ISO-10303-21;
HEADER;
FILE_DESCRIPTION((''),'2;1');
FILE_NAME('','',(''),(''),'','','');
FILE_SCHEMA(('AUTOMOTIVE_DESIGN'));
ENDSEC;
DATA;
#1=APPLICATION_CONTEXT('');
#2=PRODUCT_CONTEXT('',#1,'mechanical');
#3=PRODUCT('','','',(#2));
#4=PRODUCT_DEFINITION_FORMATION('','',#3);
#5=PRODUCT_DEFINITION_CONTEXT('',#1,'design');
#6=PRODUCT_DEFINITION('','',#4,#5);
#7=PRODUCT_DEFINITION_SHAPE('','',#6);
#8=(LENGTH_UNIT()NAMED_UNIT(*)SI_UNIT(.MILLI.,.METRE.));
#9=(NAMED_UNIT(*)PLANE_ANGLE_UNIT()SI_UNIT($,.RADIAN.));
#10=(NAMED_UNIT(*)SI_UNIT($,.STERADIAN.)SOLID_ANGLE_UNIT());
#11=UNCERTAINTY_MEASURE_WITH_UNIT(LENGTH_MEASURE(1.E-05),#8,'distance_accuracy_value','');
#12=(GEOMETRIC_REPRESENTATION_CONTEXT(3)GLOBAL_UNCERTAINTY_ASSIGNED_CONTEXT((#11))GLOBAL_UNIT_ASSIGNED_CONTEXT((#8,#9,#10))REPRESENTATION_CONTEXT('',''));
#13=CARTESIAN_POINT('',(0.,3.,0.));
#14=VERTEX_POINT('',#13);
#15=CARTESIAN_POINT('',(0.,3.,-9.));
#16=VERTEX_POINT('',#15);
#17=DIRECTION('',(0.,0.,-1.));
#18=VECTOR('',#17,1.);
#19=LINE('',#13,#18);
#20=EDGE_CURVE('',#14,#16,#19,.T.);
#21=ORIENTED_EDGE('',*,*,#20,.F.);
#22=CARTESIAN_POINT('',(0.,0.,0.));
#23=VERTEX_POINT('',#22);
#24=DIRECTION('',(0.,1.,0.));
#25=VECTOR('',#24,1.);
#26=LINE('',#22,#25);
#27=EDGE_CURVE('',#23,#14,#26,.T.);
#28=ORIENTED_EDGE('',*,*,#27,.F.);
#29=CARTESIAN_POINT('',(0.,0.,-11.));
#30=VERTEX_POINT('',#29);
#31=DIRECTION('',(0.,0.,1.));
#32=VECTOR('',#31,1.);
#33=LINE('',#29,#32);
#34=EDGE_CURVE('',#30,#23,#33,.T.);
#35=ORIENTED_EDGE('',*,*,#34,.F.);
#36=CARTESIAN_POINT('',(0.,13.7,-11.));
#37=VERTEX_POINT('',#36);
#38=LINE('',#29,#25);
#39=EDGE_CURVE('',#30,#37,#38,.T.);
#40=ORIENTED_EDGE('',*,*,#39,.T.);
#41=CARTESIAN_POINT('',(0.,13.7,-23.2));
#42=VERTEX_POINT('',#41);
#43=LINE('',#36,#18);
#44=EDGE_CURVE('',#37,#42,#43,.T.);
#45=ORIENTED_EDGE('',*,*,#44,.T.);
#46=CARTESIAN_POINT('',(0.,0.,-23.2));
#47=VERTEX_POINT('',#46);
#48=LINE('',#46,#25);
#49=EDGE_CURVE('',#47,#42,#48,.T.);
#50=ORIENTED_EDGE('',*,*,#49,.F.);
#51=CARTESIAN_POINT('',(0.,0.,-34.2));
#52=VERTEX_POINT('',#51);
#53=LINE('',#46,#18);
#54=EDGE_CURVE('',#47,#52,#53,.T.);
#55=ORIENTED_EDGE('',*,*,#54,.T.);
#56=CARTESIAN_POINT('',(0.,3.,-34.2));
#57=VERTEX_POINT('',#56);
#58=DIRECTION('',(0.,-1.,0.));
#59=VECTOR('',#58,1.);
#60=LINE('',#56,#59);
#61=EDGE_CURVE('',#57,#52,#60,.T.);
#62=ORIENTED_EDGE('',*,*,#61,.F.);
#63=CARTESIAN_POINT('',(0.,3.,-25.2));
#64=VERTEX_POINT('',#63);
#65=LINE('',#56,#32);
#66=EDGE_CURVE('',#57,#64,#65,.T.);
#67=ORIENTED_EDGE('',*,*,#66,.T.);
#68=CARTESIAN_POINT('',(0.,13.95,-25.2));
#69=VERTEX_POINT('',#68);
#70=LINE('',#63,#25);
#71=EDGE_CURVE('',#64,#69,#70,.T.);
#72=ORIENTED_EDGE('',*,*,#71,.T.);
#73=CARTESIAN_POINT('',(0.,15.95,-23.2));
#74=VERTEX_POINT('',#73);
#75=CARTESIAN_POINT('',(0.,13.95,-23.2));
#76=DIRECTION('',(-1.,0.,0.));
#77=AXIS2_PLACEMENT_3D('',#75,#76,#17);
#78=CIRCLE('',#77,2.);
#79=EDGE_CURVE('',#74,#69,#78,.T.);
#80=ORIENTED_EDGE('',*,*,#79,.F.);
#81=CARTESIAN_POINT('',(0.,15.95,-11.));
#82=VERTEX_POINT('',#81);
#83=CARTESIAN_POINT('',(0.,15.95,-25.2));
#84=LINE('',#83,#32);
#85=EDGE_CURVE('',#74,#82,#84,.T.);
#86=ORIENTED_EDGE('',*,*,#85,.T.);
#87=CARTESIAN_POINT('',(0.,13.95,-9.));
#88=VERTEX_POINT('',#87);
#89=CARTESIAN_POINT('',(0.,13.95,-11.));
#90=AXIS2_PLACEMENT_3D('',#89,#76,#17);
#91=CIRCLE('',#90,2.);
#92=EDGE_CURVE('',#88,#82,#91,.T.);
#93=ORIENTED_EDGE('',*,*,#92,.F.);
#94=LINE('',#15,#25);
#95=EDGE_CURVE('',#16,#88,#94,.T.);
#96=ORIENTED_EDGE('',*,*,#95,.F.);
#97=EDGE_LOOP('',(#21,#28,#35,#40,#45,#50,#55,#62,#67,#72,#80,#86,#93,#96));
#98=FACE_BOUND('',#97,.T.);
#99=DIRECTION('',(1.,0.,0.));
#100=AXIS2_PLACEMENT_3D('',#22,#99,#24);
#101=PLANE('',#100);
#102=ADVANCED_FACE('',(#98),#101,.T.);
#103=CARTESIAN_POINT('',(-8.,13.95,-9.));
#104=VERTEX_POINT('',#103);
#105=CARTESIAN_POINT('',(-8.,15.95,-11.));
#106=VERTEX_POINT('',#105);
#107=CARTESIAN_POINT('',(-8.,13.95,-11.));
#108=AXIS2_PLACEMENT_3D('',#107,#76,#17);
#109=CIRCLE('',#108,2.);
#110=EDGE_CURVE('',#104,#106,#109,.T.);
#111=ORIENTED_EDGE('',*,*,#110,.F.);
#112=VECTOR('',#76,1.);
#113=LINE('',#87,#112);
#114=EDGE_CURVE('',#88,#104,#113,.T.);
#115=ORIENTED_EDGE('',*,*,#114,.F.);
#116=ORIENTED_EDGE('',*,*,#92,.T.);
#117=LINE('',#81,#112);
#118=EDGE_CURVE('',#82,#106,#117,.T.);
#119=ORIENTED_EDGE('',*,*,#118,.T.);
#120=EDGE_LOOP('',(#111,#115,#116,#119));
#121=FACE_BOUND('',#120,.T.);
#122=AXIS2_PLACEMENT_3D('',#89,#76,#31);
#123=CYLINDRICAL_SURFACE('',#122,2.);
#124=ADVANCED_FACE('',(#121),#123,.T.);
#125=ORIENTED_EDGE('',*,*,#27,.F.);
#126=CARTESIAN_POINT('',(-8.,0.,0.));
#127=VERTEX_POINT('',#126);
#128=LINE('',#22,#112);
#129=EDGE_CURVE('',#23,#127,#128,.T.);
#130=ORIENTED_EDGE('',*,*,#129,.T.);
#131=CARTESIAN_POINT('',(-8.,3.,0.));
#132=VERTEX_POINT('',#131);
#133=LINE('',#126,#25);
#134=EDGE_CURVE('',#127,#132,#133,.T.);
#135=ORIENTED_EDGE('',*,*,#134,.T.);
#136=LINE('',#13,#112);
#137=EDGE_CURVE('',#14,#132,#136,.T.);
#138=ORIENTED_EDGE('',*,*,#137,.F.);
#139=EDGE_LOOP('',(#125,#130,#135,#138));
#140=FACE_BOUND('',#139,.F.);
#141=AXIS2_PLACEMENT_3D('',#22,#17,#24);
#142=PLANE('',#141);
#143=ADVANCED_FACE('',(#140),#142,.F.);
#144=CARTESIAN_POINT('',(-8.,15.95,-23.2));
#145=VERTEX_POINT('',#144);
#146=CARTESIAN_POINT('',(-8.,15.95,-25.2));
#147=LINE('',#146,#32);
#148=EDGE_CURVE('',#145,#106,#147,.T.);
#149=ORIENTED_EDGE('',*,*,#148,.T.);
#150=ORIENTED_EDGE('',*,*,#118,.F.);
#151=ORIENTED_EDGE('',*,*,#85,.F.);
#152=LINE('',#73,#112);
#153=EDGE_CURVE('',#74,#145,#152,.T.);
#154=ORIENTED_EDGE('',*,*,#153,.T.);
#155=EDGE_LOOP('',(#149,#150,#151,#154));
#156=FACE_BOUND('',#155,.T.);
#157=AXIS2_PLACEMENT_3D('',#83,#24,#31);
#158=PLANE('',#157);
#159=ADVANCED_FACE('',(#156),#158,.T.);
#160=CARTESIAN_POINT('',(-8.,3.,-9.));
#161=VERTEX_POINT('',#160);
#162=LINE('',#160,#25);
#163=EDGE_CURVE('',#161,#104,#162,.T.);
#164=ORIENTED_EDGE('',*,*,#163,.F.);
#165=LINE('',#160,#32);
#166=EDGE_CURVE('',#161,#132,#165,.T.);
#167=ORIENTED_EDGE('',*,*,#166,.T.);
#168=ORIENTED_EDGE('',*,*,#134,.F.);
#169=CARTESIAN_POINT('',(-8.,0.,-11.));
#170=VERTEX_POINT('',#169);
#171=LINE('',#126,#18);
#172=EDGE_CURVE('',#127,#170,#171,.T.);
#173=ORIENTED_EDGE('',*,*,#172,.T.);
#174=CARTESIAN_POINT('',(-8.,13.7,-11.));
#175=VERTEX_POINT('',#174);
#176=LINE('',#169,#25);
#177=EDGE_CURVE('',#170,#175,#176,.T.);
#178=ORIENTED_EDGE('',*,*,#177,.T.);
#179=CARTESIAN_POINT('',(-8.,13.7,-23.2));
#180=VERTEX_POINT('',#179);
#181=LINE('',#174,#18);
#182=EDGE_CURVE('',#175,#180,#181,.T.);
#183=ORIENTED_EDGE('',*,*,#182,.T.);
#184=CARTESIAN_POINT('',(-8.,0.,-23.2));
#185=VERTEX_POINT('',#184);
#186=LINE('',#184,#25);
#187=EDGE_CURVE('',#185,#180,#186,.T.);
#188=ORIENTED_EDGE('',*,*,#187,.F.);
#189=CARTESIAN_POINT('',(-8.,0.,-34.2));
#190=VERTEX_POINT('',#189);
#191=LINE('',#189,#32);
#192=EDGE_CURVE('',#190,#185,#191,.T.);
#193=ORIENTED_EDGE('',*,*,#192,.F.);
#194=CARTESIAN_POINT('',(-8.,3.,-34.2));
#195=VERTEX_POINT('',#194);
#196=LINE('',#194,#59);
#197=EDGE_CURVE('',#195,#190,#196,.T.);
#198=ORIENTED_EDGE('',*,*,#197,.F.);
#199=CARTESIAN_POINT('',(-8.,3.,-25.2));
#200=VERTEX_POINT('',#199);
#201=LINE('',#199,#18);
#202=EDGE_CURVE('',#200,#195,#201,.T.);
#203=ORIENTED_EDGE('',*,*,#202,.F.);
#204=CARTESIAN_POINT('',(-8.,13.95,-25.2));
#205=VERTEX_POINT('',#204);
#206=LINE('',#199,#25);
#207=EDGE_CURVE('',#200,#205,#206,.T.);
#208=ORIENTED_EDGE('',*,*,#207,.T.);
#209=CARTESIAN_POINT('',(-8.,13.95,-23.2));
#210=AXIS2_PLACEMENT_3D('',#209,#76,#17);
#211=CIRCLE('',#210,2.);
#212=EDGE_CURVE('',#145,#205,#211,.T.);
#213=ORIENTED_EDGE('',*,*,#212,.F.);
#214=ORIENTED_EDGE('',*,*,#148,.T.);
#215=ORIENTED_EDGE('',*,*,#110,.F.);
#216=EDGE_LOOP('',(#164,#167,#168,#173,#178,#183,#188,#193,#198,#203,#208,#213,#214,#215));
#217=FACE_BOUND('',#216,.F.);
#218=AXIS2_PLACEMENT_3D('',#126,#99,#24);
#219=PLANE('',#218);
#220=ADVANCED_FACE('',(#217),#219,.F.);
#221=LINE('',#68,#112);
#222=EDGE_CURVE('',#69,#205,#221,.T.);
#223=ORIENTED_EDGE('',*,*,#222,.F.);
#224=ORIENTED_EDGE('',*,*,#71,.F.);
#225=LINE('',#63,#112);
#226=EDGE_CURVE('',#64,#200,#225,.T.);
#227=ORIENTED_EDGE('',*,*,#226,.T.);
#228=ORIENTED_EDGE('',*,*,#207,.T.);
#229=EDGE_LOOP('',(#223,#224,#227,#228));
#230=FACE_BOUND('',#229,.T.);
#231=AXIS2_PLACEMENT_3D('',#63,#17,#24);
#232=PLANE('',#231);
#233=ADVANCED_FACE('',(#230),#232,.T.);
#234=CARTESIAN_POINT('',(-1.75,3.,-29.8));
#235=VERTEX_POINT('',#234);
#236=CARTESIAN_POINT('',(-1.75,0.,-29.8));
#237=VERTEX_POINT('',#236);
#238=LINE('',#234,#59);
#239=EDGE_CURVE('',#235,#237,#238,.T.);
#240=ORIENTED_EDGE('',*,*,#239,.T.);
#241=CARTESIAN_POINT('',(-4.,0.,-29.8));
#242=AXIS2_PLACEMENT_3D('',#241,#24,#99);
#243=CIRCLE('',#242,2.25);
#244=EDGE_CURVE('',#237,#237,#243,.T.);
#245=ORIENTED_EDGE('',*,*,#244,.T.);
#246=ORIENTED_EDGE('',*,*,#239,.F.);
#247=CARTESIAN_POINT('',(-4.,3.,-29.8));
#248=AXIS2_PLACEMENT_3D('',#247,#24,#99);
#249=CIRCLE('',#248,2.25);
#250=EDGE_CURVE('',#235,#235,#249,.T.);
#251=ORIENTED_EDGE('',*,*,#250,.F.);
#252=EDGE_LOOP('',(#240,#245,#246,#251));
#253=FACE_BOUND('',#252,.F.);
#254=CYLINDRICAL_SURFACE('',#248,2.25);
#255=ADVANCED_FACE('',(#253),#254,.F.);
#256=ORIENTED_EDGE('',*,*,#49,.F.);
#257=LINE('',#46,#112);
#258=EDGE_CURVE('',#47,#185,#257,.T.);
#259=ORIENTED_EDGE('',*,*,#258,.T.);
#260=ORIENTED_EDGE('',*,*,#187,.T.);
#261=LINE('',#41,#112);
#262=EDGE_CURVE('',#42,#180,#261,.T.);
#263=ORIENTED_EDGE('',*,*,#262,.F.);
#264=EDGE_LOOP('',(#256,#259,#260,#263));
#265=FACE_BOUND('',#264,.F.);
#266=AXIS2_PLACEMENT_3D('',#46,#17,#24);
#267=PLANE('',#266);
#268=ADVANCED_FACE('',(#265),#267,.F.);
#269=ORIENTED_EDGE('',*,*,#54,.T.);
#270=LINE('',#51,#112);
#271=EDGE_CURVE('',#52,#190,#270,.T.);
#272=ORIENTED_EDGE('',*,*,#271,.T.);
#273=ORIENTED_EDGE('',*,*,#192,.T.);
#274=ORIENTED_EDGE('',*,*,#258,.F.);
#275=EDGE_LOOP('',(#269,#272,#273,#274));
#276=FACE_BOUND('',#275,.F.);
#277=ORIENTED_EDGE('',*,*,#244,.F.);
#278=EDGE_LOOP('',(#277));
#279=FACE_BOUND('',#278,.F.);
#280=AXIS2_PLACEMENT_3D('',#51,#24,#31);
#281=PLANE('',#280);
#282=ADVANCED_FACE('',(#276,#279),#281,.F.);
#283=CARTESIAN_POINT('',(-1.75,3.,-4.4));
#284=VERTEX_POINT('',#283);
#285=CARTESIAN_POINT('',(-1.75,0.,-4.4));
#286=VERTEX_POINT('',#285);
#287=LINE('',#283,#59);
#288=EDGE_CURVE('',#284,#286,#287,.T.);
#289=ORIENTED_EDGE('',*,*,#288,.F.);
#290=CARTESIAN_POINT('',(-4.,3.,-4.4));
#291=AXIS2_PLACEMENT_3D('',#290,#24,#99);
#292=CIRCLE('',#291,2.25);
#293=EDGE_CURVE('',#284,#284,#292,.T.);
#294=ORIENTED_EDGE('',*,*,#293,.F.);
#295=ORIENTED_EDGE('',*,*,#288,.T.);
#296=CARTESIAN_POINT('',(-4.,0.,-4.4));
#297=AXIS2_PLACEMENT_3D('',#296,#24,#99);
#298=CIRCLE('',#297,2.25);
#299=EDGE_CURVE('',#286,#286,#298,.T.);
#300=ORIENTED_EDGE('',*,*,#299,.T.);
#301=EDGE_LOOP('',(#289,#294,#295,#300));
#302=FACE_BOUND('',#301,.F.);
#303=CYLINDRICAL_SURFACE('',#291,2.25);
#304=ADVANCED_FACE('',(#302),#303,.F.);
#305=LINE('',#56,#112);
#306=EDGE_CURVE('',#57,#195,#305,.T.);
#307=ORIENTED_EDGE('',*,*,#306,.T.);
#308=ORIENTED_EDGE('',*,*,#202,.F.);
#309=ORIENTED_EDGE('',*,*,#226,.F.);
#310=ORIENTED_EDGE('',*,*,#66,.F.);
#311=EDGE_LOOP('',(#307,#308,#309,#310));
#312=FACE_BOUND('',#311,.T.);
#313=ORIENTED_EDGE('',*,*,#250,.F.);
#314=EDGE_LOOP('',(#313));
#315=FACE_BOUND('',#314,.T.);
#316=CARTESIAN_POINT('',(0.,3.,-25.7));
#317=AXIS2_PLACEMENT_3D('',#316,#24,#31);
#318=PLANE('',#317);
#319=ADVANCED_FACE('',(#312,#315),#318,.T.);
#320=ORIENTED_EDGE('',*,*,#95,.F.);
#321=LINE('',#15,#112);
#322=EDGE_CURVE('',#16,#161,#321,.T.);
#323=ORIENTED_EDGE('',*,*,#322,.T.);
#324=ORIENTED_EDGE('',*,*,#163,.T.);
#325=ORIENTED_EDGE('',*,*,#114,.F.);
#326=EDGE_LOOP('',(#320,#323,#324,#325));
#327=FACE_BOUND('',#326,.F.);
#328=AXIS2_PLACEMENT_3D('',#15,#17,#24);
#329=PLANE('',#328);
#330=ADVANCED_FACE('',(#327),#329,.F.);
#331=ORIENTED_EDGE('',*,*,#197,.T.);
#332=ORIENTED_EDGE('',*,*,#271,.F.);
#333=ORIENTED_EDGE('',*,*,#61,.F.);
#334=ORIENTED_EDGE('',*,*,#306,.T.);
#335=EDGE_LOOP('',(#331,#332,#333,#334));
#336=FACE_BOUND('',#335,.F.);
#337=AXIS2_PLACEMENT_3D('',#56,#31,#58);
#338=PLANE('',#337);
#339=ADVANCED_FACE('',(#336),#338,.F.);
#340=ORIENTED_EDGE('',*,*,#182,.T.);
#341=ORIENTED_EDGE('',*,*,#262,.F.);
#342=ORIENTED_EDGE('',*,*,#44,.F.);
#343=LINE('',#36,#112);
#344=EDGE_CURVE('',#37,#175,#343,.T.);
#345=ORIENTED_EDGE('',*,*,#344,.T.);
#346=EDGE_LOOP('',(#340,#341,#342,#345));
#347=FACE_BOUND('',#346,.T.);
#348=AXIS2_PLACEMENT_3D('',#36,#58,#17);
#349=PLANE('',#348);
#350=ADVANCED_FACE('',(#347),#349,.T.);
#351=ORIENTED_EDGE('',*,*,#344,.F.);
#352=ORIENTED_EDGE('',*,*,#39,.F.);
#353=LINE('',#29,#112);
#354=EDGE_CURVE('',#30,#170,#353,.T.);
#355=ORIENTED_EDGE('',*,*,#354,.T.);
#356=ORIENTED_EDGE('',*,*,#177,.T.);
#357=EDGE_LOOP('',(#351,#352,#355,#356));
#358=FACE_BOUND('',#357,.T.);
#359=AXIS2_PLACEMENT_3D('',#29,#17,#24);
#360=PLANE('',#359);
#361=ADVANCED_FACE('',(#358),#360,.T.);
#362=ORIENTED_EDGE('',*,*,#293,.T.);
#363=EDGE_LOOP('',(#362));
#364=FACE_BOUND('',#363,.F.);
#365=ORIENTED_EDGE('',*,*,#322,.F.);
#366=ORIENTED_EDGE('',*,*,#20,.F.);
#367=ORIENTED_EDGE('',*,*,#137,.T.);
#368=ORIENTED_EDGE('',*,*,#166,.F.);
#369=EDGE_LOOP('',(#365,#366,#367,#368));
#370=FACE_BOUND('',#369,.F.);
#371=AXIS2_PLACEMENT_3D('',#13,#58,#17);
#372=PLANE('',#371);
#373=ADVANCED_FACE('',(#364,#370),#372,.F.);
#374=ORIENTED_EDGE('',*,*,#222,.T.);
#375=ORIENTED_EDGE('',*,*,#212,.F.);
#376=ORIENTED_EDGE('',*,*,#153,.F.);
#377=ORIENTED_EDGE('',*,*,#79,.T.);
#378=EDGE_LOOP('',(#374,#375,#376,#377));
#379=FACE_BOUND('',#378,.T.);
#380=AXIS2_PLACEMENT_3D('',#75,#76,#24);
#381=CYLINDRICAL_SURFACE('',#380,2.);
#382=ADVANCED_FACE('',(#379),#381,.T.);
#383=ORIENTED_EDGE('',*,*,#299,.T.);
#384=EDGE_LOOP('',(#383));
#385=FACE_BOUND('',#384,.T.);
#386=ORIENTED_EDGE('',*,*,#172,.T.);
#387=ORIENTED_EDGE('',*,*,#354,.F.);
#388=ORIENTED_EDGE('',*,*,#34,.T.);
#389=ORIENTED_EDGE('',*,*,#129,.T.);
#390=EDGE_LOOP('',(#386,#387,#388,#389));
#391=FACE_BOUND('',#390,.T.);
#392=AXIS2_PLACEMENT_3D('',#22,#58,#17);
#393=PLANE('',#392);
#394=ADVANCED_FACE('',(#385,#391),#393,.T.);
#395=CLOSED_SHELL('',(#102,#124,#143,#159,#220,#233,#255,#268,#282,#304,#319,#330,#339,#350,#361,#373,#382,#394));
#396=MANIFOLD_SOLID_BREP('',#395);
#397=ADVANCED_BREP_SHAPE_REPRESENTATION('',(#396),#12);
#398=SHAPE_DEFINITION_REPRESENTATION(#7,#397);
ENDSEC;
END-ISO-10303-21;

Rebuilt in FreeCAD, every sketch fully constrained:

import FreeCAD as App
import Part
import Sketcher


def edges_at(feature, points):
    """Names of the edges that pass closest to the given points."""
    edges = feature.Shape.Edges
    near = lambda p: min(range(len(edges)), key=lambda i: edges[i].distToShape(Part.Vertex(*p))[0])
    return sorted({f"Edge{near(p) + 1}" for p in points})


def add_polygon(sketch, points):
    """Adds a closed chain of lines whose ends are joined by coincident constraints."""
    first, n = sketch.GeometryCount, len(points)
    for a, b in zip(points, points[1:] + points[:1]):
        sketch.addGeometry(Part.LineSegment(App.Vector(*a, 0), App.Vector(*b, 0)), False)
    for i in range(n):
        sketch.addConstraint(Sketcher.Constraint("Coincident", first + i, 2, first + (i + 1) % n, 1))

doc = App.newDocument("Part")
body = doc.addObject("PartDesign::Body", "Body")

sketch1 = body.newObject("Sketcher::SketchObject", "Sketch")
sketch1.AttachmentSupport = (doc.getObject("YZ_Plane"), [""])
sketch1.MapMode = "FlatFace"
add_polygon(sketch1, [(3, 0), (0, 0), (0, -11), (13.7, -11), (13.7, -23.2), (0, -23.2), (0, -34.2), (3, -34.2), (3, -25.2), (15.9, -25.2), (15.9, -9), (3, -9)])
sketch1.addConstraint(Sketcher.Constraint("Horizontal", 0))
sketch1.addConstraint(Sketcher.Constraint("Vertical", 1))
sketch1.addConstraint(Sketcher.Constraint("Horizontal", 2))
sketch1.addConstraint(Sketcher.Constraint("Vertical", 3))
sketch1.addConstraint(Sketcher.Constraint("Horizontal", 4))
sketch1.addConstraint(Sketcher.Constraint("Vertical", 5))
sketch1.addConstraint(Sketcher.Constraint("Horizontal", 6))
sketch1.addConstraint(Sketcher.Constraint("Vertical", 7))
sketch1.addConstraint(Sketcher.Constraint("Horizontal", 8))
sketch1.addConstraint(Sketcher.Constraint("Vertical", 9))
sketch1.addConstraint(Sketcher.Constraint("Horizontal", 10))
sketch1.addConstraint(Sketcher.Constraint("Vertical", 11))
sketch1.addConstraint(Sketcher.Constraint("Coincident", 0, 2, -1, 1))
sketch1.addConstraint(Sketcher.Constraint("PointOnObject", 4, 2, -2))
sketch1.addConstraint(Sketcher.Constraint("Vertical", 7, 2, 10, 2))
sketch1.addConstraint(Sketcher.Constraint("Equal", 1, 5))
sketch1.addConstraint(Sketcher.Constraint("Equal", 7, 11))
sketch1.addConstraint(Sketcher.Constraint("DistanceX", 0, 2, 0, 1, 3.0))
sketch1.addConstraint(Sketcher.Constraint("DistanceX", 2, 1, 2, 2, 13.7))
sketch1.addConstraint(Sketcher.Constraint("DistanceY", 3, 2, 3, 1, 12.2))
sketch1.addConstraint(Sketcher.Constraint("DistanceY", 1, 2, 1, 1, 11.0))
sketch1.addConstraint(Sketcher.Constraint("DistanceY", 7, 1, 7, 2, 9.0))
sketch1.addConstraint(Sketcher.Constraint("DistanceX", 3, 2, 8, 2, 2.25))
pad1 = body.newObject("PartDesign::Pad", "Pad")
pad1.Profile = sketch1
pad1.Length = 8
pad1.Reversed = True

sketch2 = body.newObject("Sketcher::SketchObject", "Sketch001")
sketch2.AttachmentSupport = (doc.getObject("XZ_Plane"), [""])
sketch2.MapMode = "FlatFace"
sketch2.AttachmentOffset = App.Placement(App.Vector(0, 0, -3), App.Rotation())
sketch2.addGeometry(Part.Circle(App.Vector(-4, -29.8, 0), App.Vector(0, 0, 1), 2.2), False)
sketch2.addGeometry(Part.Circle(App.Vector(-4, -4.4, 0), App.Vector(0, 0, 1), 2.2), False)
sketch2.addConstraint(Sketcher.Constraint("Equal", 0, 1))
sketch2.addConstraint(Sketcher.Constraint("Vertical", 0, 3, 1, 3))
sketch2.addConstraint(Sketcher.Constraint("Diameter", 0, 4.5))
sketch2.addConstraint(Sketcher.Constraint("DistanceX", 0, 3, -1, 1, 4.0))
sketch2.addConstraint(Sketcher.Constraint("DistanceY", 1, 3, -1, 1, 4.4))
sketch2.addConstraint(Sketcher.Constraint("DistanceY", 0, 3, -1, 1, 29.8))
pocket1 = body.newObject("PartDesign::Pocket", "Pocket")
pocket1.Profile = sketch2
pocket1.Type = "ThroughAll"
pocket1.Reversed = True
doc.recompute()

fillet = body.newObject("PartDesign::Fillet", "Fillet")
fillet.Base = (pocket1, edges_at(pocket1, [(-4, 15.95, -9), (-4, 15.95, -25.2)]))
fillet.Radius = 2

doc.recompute()
